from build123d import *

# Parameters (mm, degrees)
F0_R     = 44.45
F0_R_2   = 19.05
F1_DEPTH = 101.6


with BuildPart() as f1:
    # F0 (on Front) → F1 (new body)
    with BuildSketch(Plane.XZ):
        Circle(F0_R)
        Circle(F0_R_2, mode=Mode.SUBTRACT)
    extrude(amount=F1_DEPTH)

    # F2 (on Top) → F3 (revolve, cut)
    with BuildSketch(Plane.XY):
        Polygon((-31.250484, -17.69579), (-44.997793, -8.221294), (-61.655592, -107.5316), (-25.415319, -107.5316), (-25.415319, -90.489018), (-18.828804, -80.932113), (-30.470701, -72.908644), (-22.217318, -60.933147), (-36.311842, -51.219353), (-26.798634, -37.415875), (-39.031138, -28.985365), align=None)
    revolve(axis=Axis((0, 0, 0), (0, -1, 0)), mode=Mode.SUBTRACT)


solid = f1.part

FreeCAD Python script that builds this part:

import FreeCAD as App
import Part
import Sketcher
Q = App.Units.Quantity


def add_polygon(sketch, points):
    """Adds a closed chain of lines whose ends are joined by coincident constraints."""
    first, n = sketch.GeometryCount, len(points)
    for a, b in zip(points, points[1:] + points[:1]):
        sketch.addGeometry(Part.LineSegment(App.Vector(*a, 0), App.Vector(*b, 0)), False)
    for i in range(n):
        sketch.addConstraint(Sketcher.Constraint("Coincident", first + i, 2, first + (i + 1) % n, 1))

doc = App.newDocument("Part")
body = doc.addObject("PartDesign::Body", "Body")
body.AllowCompound = True

# Sketch on XZ plane
sketch1 = doc.addObject("Sketcher::SketchObject", "Sketch")
body.addObject(sketch1)
sketch1.AttachmentSupport = (doc.XZ_Plane, [""])
sketch1.MapMode = "FlatFace"
sketch1.addGeometry(Part.Circle(App.Vector(0, 0, 0), App.Vector(0, 0, 1), 44), False)
sketch1.addGeometry(Part.Circle(App.Vector(0, 0, 0), App.Vector(0, 0, 1), 19), False)
sketch1.addConstraint(Sketcher.Constraint("Coincident", 0, 3, -1, 1))
sketch1.addConstraint(Sketcher.Constraint("Coincident", 1, 3, -1, 1))
sketch1.addConstraint(Sketcher.Constraint("Diameter", 0, Q("3.5 in")))
sketch1.addConstraint(Sketcher.Constraint("Diameter", 1, Q("1.5 in")))
pad1 = doc.addObject("PartDesign::Pad", "Pad")
body.addObject(pad1)
pad1.Profile = sketch1
pad1.Length = Q("4 in")

# Sketch on XY plane
sketch2 = doc.addObject("Sketcher::SketchObject", "Sketch001")
body.addObject(sketch2)
sketch2.AttachmentSupport = (doc.XY_Plane, [""])
sketch2.MapMode = "FlatFace"
add_polygon(sketch2, [(-31, -18), (-45, -8), (-62, -108), (-25, -108), (-25, -90), (-19, -81), (-30, -73), (-22, -61), (-36, -51), (-27, -37), (-39, -29)])  # lines 0-10
sketch2.addConstraint(Sketcher.Constraint("Horizontal", 2))
sketch2.addConstraint(Sketcher.Constraint("Vertical", 3))
sketch2.addConstraint(Sketcher.Constraint("Perpendicular", 0, 4))
sketch2.addConstraint(Sketcher.Constraint("Perpendicular", 4, 5))
sketch2.addConstraint(Sketcher.Constraint("Perpendicular", 5, 6))
sketch2.addConstraint(Sketcher.Constraint("Perpendicular", 6, 7))
sketch2.addConstraint(Sketcher.Constraint("Perpendicular", 7, 8))
sketch2.addConstraint(Sketcher.Constraint("Perpendicular", 8, 9))
sketch2.addConstraint(Sketcher.Constraint("Perpendicular", 9, 10))
sketch2.addConstraint(Sketcher.Constraint("DistanceX", 7, 2, -1, 1, Q("1.4296001 in")))
sketch2.addConstraint(Sketcher.Constraint("Distance", 6, Q("14.5441 mm")))
sketch2.addConstraint(Sketcher.Constraint("DistanceY", 3, 1, 3, 2, Q("17.042582 mm")))
sketch2.addConstraint(Sketcher.Constraint("DistanceY", 1, 2, -1, 1, Q("107.5316 mm")))
sketch2.addConstraint(Sketcher.Constraint("DistanceX", 5, 2, -1, 1, Q("30.470701 mm")))
sketch2.addConstraint(Sketcher.Constraint("DistanceX", 1, 2, 0, 2, Q("16.657799 mm")))
sketch2.addConstraint(Sketcher.Constraint("DistanceX", 3, 2, 6, 2, Q("3.198001 mm")))
sketch2.addConstraint(Sketcher.Constraint("Distance", 4, Q("11.606749 mm")))
sketch2.addConstraint(Sketcher.Constraint("DistanceX", 2, 1, 2, 2, Q("36.240273 mm")))
sketch2.addConstraint(Sketcher.Constraint("DistanceX", 2, 2, -1, 1, Q("25.415319 mm")))
sketch2.addConstraint(Sketcher.Constraint("DistanceY", 10, 2, -1, 1, Q("17.69579 mm")))
sketch2.addConstraint(Sketcher.Constraint("DistanceY", 4, 2, 0, 2, Q("72.710819 mm")))
sketch2.addConstraint(Sketcher.Constraint("DistanceY", 6, 2, 8, 2, Q("23.517272 mm")))
groove = doc.addObject("PartDesign::Groove", "Groove")
body.addObject(groove)
groove.Profile = sketch2
groove.ReferenceAxis = (sketch2, ["V_Axis"])
groove.Angle = 360

doc.recompute()
